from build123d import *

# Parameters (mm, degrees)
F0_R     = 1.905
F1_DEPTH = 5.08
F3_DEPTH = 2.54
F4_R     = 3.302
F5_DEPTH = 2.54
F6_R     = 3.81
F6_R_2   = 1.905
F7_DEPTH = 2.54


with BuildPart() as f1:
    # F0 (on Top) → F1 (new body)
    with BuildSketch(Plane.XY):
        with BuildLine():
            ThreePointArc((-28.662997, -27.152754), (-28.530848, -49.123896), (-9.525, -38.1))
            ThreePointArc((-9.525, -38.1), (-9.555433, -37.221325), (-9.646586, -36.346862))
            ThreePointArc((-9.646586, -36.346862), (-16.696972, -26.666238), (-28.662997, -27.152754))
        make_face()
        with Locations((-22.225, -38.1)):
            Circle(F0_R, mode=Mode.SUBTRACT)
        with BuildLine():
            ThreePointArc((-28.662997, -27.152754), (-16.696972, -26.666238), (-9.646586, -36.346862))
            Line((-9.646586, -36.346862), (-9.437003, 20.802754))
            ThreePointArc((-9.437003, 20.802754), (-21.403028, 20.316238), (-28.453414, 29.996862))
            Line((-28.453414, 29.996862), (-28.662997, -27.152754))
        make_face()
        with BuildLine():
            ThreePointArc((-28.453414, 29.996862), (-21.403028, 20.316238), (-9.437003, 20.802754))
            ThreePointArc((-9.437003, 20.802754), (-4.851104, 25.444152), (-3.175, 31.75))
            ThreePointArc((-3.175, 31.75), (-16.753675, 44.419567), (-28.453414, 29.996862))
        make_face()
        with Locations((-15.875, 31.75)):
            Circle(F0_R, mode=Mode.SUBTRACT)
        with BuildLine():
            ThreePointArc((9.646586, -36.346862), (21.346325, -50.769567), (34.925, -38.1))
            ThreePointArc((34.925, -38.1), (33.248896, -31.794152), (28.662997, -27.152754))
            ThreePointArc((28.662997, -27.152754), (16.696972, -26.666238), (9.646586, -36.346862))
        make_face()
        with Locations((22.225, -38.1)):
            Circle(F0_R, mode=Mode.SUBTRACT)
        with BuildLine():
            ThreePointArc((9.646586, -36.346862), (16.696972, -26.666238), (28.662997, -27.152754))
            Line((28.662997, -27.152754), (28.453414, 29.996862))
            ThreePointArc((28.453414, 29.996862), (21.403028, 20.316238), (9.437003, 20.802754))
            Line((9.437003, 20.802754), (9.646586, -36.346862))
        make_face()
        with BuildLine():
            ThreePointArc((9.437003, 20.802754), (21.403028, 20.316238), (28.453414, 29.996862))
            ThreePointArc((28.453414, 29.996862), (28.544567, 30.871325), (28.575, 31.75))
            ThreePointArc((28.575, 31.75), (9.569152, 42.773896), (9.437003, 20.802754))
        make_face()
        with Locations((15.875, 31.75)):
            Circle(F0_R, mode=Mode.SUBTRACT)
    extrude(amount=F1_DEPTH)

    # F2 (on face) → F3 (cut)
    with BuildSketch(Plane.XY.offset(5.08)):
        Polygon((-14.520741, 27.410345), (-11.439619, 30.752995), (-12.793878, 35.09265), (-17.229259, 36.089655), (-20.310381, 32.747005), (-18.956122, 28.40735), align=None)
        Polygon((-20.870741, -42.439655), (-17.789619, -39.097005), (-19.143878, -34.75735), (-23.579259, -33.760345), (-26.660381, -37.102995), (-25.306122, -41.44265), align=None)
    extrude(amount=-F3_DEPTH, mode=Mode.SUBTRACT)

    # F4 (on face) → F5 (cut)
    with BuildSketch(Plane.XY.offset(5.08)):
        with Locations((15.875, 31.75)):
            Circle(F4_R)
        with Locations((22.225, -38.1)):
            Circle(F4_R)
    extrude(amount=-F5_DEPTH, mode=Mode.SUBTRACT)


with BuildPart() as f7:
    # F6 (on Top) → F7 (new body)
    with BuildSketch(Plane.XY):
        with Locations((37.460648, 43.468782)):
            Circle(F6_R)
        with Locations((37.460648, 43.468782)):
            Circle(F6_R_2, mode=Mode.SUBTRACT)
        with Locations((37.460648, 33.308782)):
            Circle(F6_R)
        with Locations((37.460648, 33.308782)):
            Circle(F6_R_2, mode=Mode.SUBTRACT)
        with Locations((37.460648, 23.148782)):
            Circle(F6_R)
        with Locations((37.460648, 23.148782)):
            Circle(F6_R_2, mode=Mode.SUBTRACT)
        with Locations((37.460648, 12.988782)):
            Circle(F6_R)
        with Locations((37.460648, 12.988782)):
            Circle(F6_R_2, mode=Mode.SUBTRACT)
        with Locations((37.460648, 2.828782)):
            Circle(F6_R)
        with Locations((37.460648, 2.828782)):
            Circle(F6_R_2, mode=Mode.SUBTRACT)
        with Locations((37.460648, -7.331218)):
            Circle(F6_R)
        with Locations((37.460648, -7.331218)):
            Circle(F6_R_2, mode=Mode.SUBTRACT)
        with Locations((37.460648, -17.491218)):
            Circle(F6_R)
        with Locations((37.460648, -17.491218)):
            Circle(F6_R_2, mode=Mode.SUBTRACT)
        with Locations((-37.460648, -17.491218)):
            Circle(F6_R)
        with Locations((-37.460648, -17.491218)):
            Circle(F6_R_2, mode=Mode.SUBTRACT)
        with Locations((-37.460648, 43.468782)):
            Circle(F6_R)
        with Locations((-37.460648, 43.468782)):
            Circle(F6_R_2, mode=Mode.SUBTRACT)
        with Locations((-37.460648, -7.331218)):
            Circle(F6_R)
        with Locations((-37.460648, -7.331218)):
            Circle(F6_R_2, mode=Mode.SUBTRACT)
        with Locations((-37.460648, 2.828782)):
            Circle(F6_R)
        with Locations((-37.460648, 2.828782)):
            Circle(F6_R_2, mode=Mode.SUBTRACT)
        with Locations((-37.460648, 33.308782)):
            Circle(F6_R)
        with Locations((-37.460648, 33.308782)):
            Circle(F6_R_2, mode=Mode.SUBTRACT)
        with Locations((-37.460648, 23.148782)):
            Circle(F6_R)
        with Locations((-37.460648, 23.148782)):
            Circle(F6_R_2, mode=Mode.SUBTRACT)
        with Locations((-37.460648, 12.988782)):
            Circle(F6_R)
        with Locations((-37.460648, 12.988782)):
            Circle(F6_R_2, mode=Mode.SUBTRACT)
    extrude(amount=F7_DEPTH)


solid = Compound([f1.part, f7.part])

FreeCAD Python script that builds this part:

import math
import FreeCAD as App
import Part
import Sketcher
from FreeCAD import Vector
Q = App.Units.Quantity

doc = App.newDocument("Part")
params = doc.addObject("Spreadsheet::Sheet", "Params")
for row, (alias, value) in enumerate([
    ("sketch1_radius", "0.5 in"),
    ("sketch1_radius2", "0.5 in"),
    ("sketch1_radius3", "0.5 in"),
    ("sketch1_radius4", "0.5 in"),
    ("sketch1_diameter", "0.15 in"),
    ("pad1_length", "0.2 in"),
    ("pocket1_length", "0.1 in"),
    ("sketch3_diameter", "0.26 in"),
    ("pocket2_length", "0.1 in"),
    ("sketch4_diameter", "0.3 in"),
    ("sketch4_diameter2", "0.15 in"),
    ("pad2_length", "0.1 in"),
], start=1):
    params.set(f"A{row}", alias)
    params.set(f"B{row}", "=" + value)
    params.setAlias(f"B{row}", alias)

body = doc.addObject("PartDesign::Body", "Body")
body.AllowCompound = True

# Sketch on XY plane
sketch1 = body.newObject("Sketcher::SketchObject", "Sketch")
sketch1.AttachmentSupport = (doc.getObject("XY_Plane"), [""])
sketch1.MapMode = "FlatFace"
sketch1.addGeometry(Part.ArcOfCircle(Part.Circle(Vector(-22.225, -38.1, 0), Vector(0, 0, 1), 12.7), math.radians(120.459481), math.radians(360)), False)
sketch1.addGeometry(Part.ArcOfCircle(Part.Circle(Vector(-22.224968, -38.1, 0), Vector(0, 0, 1), 12.699968), math.radians(0.000001), math.radians(7.934603)), False)
sketch1.addGeometry(Part.LineSegment(Vector(-9.646586, -36.346862, 0), Vector(-9.437003, 20.802754, 0)), False)
sketch1.addGeometry(Part.ArcOfCircle(Part.Circle(Vector(-15.875, 31.75, 0), Vector(0, 0, 1), 12.7), math.radians(-59.54052), math.radians(0.000001)), False)
sketch1.addGeometry(Part.ArcOfCircle(Part.Circle(Vector(-15.875, 31.75, 0), Vector(0, 0, 1), 12.7), math.radians(0), math.radians(187.934582)), False)
sketch1.addGeometry(Part.LineSegment(Vector(-28.453414, 29.996862, 0), Vector(-28.662997, -27.152754, 0)), False)
sketch1.addGeometry(Part.Circle(Vector(-22.225, -38.1, 0), Vector(0, 0, 1), 1.905), False)
sketch1.addGeometry(Part.Circle(Vector(-15.875, 31.75, 0), Vector(0, 0, 1), 1.905), False)
sketch1.addGeometry(Part.ArcOfCircle(Part.Circle(Vector(22.225, -38.1, 0), Vector(0, 0, 1), 12.7), math.radians(172.065418), math.radians(360)), False)
sketch1.addGeometry(Part.ArcOfCircle(Part.Circle(Vector(22.225, -38.1, 0), Vector(0, 0, 1), 12.7), math.radians(-0.000001), math.radians(59.54052)), False)
sketch1.addGeometry(Part.LineSegment(Vector(28.662997, -27.152754, 0), Vector(28.453414, 29.996862, 0)), False)
sketch1.addGeometry(Part.ArcOfCircle(Part.Circle(Vector(15.875032, 31.75, 0), Vector(0, 0, 1), 12.699968), math.radians(-7.934603), math.radians(-0.000001)), False)
sketch1.addGeometry(Part.ArcOfCircle(Part.Circle(Vector(15.875, 31.75, 0), Vector(0, 0, 1), 12.7), math.radians(0), math.radians(239.540519)), False)
sketch1.addGeometry(Part.LineSegment(Vector(9.437003, 20.802754, 0), Vector(9.646586, -36.346862, 0)), False)
sketch1.addGeometry(Part.Circle(Vector(22.225, -38.1, 0), Vector(0, 0, 1), 1.905), False)
sketch1.addGeometry(Part.Circle(Vector(15.875, 31.75, 0), Vector(0, 0, 1), 1.905), False)
sketch1.addConstraint(Sketcher.Constraint("Coincident", 0, 2, 1, 1))
sketch1.addConstraint(Sketcher.Constraint("Coincident", 1, 2, 2, 1))
sketch1.addConstraint(Sketcher.Constraint("Coincident", 2, 2, 3, 1))
sketch1.addConstraint(Sketcher.Constraint("Coincident", 3, 2, 4, 1))
sketch1.addConstraint(Sketcher.Constraint("Coincident", 4, 2, 5, 1))
sketch1.addConstraint(Sketcher.Constraint("Coincident", 5, 2, 0, 1))
sketch1.addConstraint(Sketcher.Constraint("Coincident", 8, 2, 9, 1))
sketch1.addConstraint(Sketcher.Constraint("Coincident", 9, 2, 10, 1))
sketch1.addConstraint(Sketcher.Constraint("Coincident", 10, 2, 11, 1))
sketch1.addConstraint(Sketcher.Constraint("Coincident", 11, 2, 12, 1))
sketch1.addConstraint(Sketcher.Constraint("Coincident", 12, 2, 13, 1))
sketch1.addConstraint(Sketcher.Constraint("Coincident", 13, 2, 8, 1))
sketch1.addConstraint(Sketcher.Constraint("Coincident", 4, 3, 3, 3))
sketch1.addConstraint(Sketcher.Constraint("Coincident", 6, 3, 0, 3))
sketch1.addConstraint(Sketcher.Constraint("Coincident", 7, 3, 3, 3))
sketch1.addConstraint(Sketcher.Constraint("Coincident", 9, 3, 8, 3))
sketch1.addConstraint(Sketcher.Constraint("Coincident", 14, 3, 8, 3))
sketch1.addConstraint(Sketcher.Constraint("Coincident", 15, 3, 12, 3))
sketch1.addConstraint(Sketcher.Constraint("Radius", 0, Q("0.5 in")))
sketch1.addConstraint(Sketcher.Constraint("Radius", 3, Q("0.5 in")))
sketch1.addConstraint(Sketcher.Constraint("Radius", 8, Q("0.5 in")))
sketch1.addConstraint(Sketcher.Constraint("Radius", 12, Q("0.5 in")))
sketch1.addConstraint(Sketcher.Constraint("Diameter", 6, Q("0.15 in")))
sketch1.addConstraint(Sketcher.Constraint("Diameter", 7, Q("0.15 in")))
sketch1.addConstraint(Sketcher.Constraint("Diameter", 14, Q("0.15 in")))
sketch1.addConstraint(Sketcher.Constraint("Diameter", 15, Q("0.15 in")))
sketch1.addConstraint(Sketcher.Constraint("DistanceY", 0, 3, -1, 1, Q("1.5 in")))
sketch1.addConstraint(Sketcher.Constraint("DistanceY", 1, 3, -1, 1, Q("1.5 in")))
sketch1.addConstraint(Sketcher.Constraint("DistanceY", 8, 3, -1, 1, Q("1.5 in")))
sketch1.addConstraint(Sketcher.Constraint("DistanceY", 0, 2, -1, 1, Q("1.5 in")))
sketch1.addConstraint(Sketcher.Constraint("DistanceY", 8, 2, -1, 1, Q("1.5 in")))
sketch1.addConstraint(Sketcher.Constraint("DistanceX", 3, 3, 8, 3, Q("1.5 in")))
sketch1.addConstraint(Sketcher.Constraint("Distance", 2, Q("2.25 in")))
sketch1.addConstraint(Sketcher.Constraint("Distance", 5, Q("2.25 in")))
sketch1.addConstraint(Sketcher.Constraint("Distance", 10, Q("2.25 in")))
sketch1.addConstraint(Sketcher.Constraint("Distance", 13, Q("2.25 in")))
sketch1.addConstraint(Sketcher.Constraint("DistanceY", -1, 1, 3, 3, Q("1.25 in")))
sketch1.addConstraint(Sketcher.Constraint("DistanceY", -1, 1, 11, 3, Q("1.25 in")))
sketch1.addConstraint(Sketcher.Constraint("DistanceY", -1, 1, 12, 3, Q("1.25 in")))
sketch1.addConstraint(Sketcher.Constraint("DistanceY", -1, 1, 3, 2, Q("1.25 in")))
sketch1.addConstraint(Sketcher.Constraint("DistanceY", -1, 1, 11, 2, Q("1.25 in")))
sketch1.addConstraint(Sketcher.Constraint("DistanceX", 0, 3, 3, 3, Q("0.25 in")))
sketch1.addConstraint(Sketcher.Constraint("DistanceX", 3, 3, 12, 3, Q("1.25 in")))
sketch1.addConstraint(Sketcher.Constraint("DistanceX", 0, 3, -1, 1, Q("0.875 in")))
sketch1.addConstraint(Sketcher.Constraint("Radius", 1, Q("12.699968 mm")))
sketch1.addConstraint(Sketcher.Constraint("Radius", 11, Q("12.699968 mm")))
sketch1.addConstraint(Sketcher.Constraint("DistanceY", -1, 1, 4, 2, Q("29.996862 mm")))
sketch1.addConstraint(Sketcher.Constraint("DistanceY", -1, 1, 10, 2, Q("29.996862 mm")))
sketch1.addConstraint(Sketcher.Constraint("DistanceY", 1, 3, 1, 2, Q("1.753138 mm")))
sketch1.addConstraint(Sketcher.Constraint("DistanceX", 12, 2, 11, 3, Q("6.438029 mm")))
sketch1.setExpression("Constraints[18]", "Params.sketch1_radius")
sketch1.setExpression("Constraints[19]", "Params.sketch1_radius2")
sketch1.setExpression("Constraints[20]", "Params.sketch1_radius3")
sketch1.setExpression("Constraints[21]", "Params.sketch1_radius4")
sketch1.setExpression("Constraints[22]", "Params.sketch1_diameter")
pad1 = body.newObject("PartDesign::Pad", "Pad")
pad1.Profile = sketch1
pad1.setExpression("Length", "Params.pad1_length")

# Sketch on XY plane
sketch2 = body.newObject("Sketcher::SketchObject", "Sketch001")
sketch2.AttachmentSupport = (doc.getObject("XY_Plane"), [""])
sketch2.MapMode = "FlatFace"
sketch2.AttachmentOffset = App.Placement(Vector(0, 0, 0.2 * 25.4), App.Rotation())
sketch2.addGeometry(Part.LineSegment(Vector(-14.520741, 27.410345, 0), Vector(-11.439619, 30.752995, 0)), False)
sketch2.addGeometry(Part.LineSegment(Vector(-11.439619, 30.752995, 0), Vector(-12.793878, 35.09265, 0)), False)
sketch2.addGeometry(Part.LineSegment(Vector(-12.793878, 35.09265, 0), Vector(-17.229259, 36.089655, 0)), False)
sketch2.addGeometry(Part.LineSegment(Vector(-17.229259, 36.089655, 0), Vector(-20.310381, 32.747005, 0)), False)
sketch2.addGeometry(Part.LineSegment(Vector(-20.310381, 32.747005, 0), Vector(-18.956122, 28.40735, 0)), False)
sketch2.addGeometry(Part.LineSegment(Vector(-18.956122, 28.40735, 0), Vector(-14.520741, 27.410345, 0)), False)
sketch2.addGeometry(Part.LineSegment(Vector(-20.870741, -42.439655, 0), Vector(-17.789619, -39.097005, 0)), False)
sketch2.addGeometry(Part.LineSegment(Vector(-17.789619, -39.097005, 0), Vector(-19.143878, -34.75735, 0)), False)
sketch2.addGeometry(Part.LineSegment(Vector(-19.143878, -34.75735, 0), Vector(-23.579259, -33.760345, 0)), False)
sketch2.addGeometry(Part.LineSegment(Vector(-23.579259, -33.760345, 0), Vector(-26.660381, -37.102995, 0)), False)
sketch2.addGeometry(Part.LineSegment(Vector(-26.660381, -37.102995, 0), Vector(-25.306122, -41.44265, 0)), False)
sketch2.addGeometry(Part.LineSegment(Vector(-25.306122, -41.44265, 0), Vector(-20.870741, -42.439655, 0)), False)
sketch2.addConstraint(Sketcher.Constraint("Coincident", 0, 2, 1, 1))
sketch2.addConstraint(Sketcher.Constraint("Coincident", 1, 2, 2, 1))
sketch2.addConstraint(Sketcher.Constraint("Coincident", 2, 2, 3, 1))
sketch2.addConstraint(Sketcher.Constraint("Coincident", 3, 2, 4, 1))
sketch2.addConstraint(Sketcher.Constraint("Coincident", 4, 2, 5, 1))
sketch2.addConstraint(Sketcher.Constraint("Coincident", 5, 2, 0, 1))
sketch2.addConstraint(Sketcher.Constraint("Coincident", 6, 2, 7, 1))
sketch2.addConstraint(Sketcher.Constraint("Coincident", 7, 2, 8, 1))
sketch2.addConstraint(Sketcher.Constraint("Coincident", 8, 2, 9, 1))
sketch2.addConstraint(Sketcher.Constraint("Coincident", 9, 2, 10, 1))
sketch2.addConstraint(Sketcher.Constraint("Coincident", 10, 2, 11, 1))
sketch2.addConstraint(Sketcher.Constraint("Coincident", 11, 2, 6, 1))
sketch2.addConstraint(Sketcher.Constraint("Parallel", 0, 3))
sketch2.addConstraint(Sketcher.Constraint("Parallel", 1, 4))
sketch2.addConstraint(Sketcher.Constraint("Parallel", 2, 5))
sketch2.addConstraint(Sketcher.Constraint("Parallel", 3, 6))
sketch2.addConstraint(Sketcher.Constraint("Parallel", 4, 7))
sketch2.addConstraint(Sketcher.Constraint("Parallel", 5, 8))
sketch2.addConstraint(Sketcher.Constraint("Parallel", 6, 9))
sketch2.addConstraint(Sketcher.Constraint("Parallel", 7, 10))
sketch2.addConstraint(Sketcher.Constraint("Parallel", 8, 11))
sketch2.addConstraint(Sketcher.Constraint("Equal", 0, 1))
sketch2.addConstraint(Sketcher.Constraint("Equal", 1, 2))
sketch2.addConstraint(Sketcher.Constraint("Equal", 2, 3))
sketch2.addConstraint(Sketcher.Constraint("Equal", 5, 6))
sketch2.addConstraint(Sketcher.Constraint("Equal", 6, 7))
sketch2.addConstraint(Sketcher.Constraint("Equal", 7, 8))
sketch2.addConstraint(Sketcher.Constraint("Equal", 8, 9))
sketch2.addConstraint(Sketcher.Constraint("DistanceX", 6, 2, 0, 2, Q("0.25 in")))
sketch2.addConstraint(Sketcher.Constraint("DistanceY", 6, 2, 0, 2, Q("2.75 in")))
sketch2.addConstraint(Sketcher.Constraint("DistanceY", 4, 2, 1, 2, Q("6.6853 mm")))
sketch2.addConstraint(Sketcher.Constraint("DistanceX", 0, 2, -1, 1, Q("11.439619 mm")))
sketch2.addConstraint(Sketcher.Constraint("DistanceY", -1, 1, 1, 2, Q("35.09265 mm")))
sketch2.addConstraint(Sketcher.Constraint("DistanceX", 2, 2, -1, 1, Q("17.229259 mm")))
sketch2.addConstraint(Sketcher.Constraint("DistanceX", 3, 2, -1, 1, Q("20.310381 mm")))
sketch2.addConstraint(Sketcher.Constraint("DistanceX", 7, 2, -1, 1, Q("19.143878 mm")))
pocket1 = body.newObject("PartDesign::Pocket", "Pocket")
pocket1.Profile = sketch2
pocket1.setExpression("Length", "Params.pocket1_length")

# Sketch on XY plane
sketch3 = body.newObject("Sketcher::SketchObject", "Sketch002")
sketch3.AttachmentSupport = (doc.getObject("XY_Plane"), [""])
sketch3.MapMode = "FlatFace"
sketch3.AttachmentOffset = App.Placement(Vector(0, 0, 0.2 * 25.4), App.Rotation())
sketch3.addGeometry(Part.Circle(Vector(15.875, 31.75, 0), Vector(0, 0, 1), 3.302), False)
sketch3.addGeometry(Part.Circle(Vector(22.225, -38.1, 0), Vector(0, 0, 1), 3.302), False)
sketch3.addConstraint(Sketcher.Constraint("Equal", 0, 1))
sketch3.addConstraint(Sketcher.Constraint("Diameter", 0, Q("0.26 in")))
sketch3.addConstraint(Sketcher.Constraint("DistanceY", 1, 3, -1, 1, Q("1.5 in")))
sketch3.addConstraint(Sketcher.Constraint("DistanceY", -1, 1, 0, 3, Q("1.25 in")))
sketch3.addConstraint(Sketcher.Constraint("DistanceX", 0, 3, 1, 3, Q("0.25 in")))
sketch3.addConstraint(Sketcher.Constraint("DistanceX", -1, 1, 0, 3, Q("0.625 in")))
sketch3.setExpression("Constraints[1]", "Params.sketch3_diameter")
pocket2 = body.newObject("PartDesign::Pocket", "Pocket001")
pocket2.Profile = sketch3
pocket2.setExpression("Length", "Params.pocket2_length")
body2 = doc.addObject("PartDesign::Body", "Body001")
body2.AllowCompound = True

# Sketch on XY plane
sketch4 = body2.newObject("Sketcher::SketchObject", "Sketch003")
sketch4.AttachmentSupport = (doc.getObject("XY_Plane001"), [""])
sketch4.MapMode = "FlatFace"
sketch4.addGeometry(Part.Circle(Vector(37.460648, 43.468782, 0), Vector(0, 0, 1), 3.81), False)
sketch4.addGeometry(Part.Circle(Vector(37.460648, 43.468782, 0), Vector(0, 0, 1), 1.905), False)
sketch4.addGeometry(Part.Circle(Vector(37.460648, 33.308782, 0), Vector(0, 0, 1), 3.81), False)
sketch4.addGeometry(Part.Circle(Vector(37.460648, 33.308782, 0), Vector(0, 0, 1), 1.905), False)
sketch4.addGeometry(Part.Circle(Vector(37.460648, 23.148782, 0), Vector(0, 0, 1), 3.81), False)
sketch4.addGeometry(Part.Circle(Vector(37.460648, 23.148782, 0), Vector(0, 0, 1), 1.905), False)
sketch4.addGeometry(Part.Circle(Vector(37.460648, 12.988782, 0), Vector(0, 0, 1), 3.81), False)
sketch4.addGeometry(Part.Circle(Vector(37.460648, 12.988782, 0), Vector(0, 0, 1), 1.905), False)
sketch4.addGeometry(Part.Circle(Vector(37.460648, 2.828782, 0), Vector(0, 0, 1), 3.81), False)
sketch4.addGeometry(Part.Circle(Vector(37.460648, 2.828782, 0), Vector(0, 0, 1), 1.905), False)
sketch4.addGeometry(Part.Circle(Vector(37.460648, -7.331218, 0), Vector(0, 0, 1), 3.81), False)
sketch4.addGeometry(Part.Circle(Vector(37.460648, -7.331218, 0), Vector(0, 0, 1), 1.905), False)
sketch4.addGeometry(Part.Circle(Vector(37.460648, -17.491218, 0), Vector(0, 0, 1), 3.81), False)
sketch4.addGeometry(Part.Circle(Vector(37.460648, -17.491218, 0), Vector(0, 0, 1), 1.905), False)
sketch4.addGeometry(Part.Circle(Vector(-37.460648, -17.491218, 0), Vector(0, 0, 1), 3.81), False)
sketch4.addGeometry(Part.Circle(Vector(-37.460648, -17.491218, 0), Vector(0, 0, 1), 1.905), False)
sketch4.addGeometry(Part.Circle(Vector(-37.460648, 43.468782, 0), Vector(0, 0, 1), 3.81), False)
sketch4.addGeometry(Part.Circle(Vector(-37.460648, 43.468782, 0), Vector(0, 0, 1), 1.905), False)
sketch4.addGeometry(Part.Circle(Vector(-37.460648, -7.331218, 0), Vector(0, 0, 1), 3.81), False)
sketch4.addGeometry(Part.Circle(Vector(-37.460648, -7.331218, 0), Vector(0, 0, 1), 1.905), False)
sketch4.addGeometry(Part.Circle(Vector(-37.460648, 2.828782, 0), Vector(0, 0, 1), 3.81), False)
sketch4.addGeometry(Part.Circle(Vector(-37.460648, 2.828782, 0), Vector(0, 0, 1), 1.905), False)
sketch4.addGeometry(Part.Circle(Vector(-37.460648, 33.308782, 0), Vector(0, 0, 1), 3.81), False)
sketch4.addGeometry(Part.Circle(Vector(-37.460648, 33.308782, 0), Vector(0, 0, 1), 1.905), False)
sketch4.addGeometry(Part.Circle(Vector(-37.460648, 23.148782, 0), Vector(0, 0, 1), 3.81), False)
sketch4.addGeometry(Part.Circle(Vector(-37.460648, 23.148782, 0), Vector(0, 0, 1), 1.905), False)
sketch4.addGeometry(Part.Circle(Vector(-37.460648, 12.988782, 0), Vector(0, 0, 1), 3.81), False)
sketch4.addGeometry(Part.Circle(Vector(-37.460648, 12.988782, 0), Vector(0, 0, 1), 1.905), False)
sketch4.addConstraint(Sketcher.Constraint("Coincident", 1, 3, 0, 3))
sketch4.addConstraint(Sketcher.Constraint("Coincident", 3, 3, 2, 3))
sketch4.addConstraint(Sketcher.Constraint("Coincident", 5, 3, 4, 3))
sketch4.addConstraint(Sketcher.Constraint("Coincident", 7, 3, 6, 3))
sketch4.addConstraint(Sketcher.Constraint("Coincident", 9, 3, 8, 3))
sketch4.addConstraint(Sketcher.Constraint("Coincident", 11, 3, 10, 3))
sketch4.addConstraint(Sketcher.Constraint("Coincident", 13, 3, 12, 3))
sketch4.addConstraint(Sketcher.Constraint("Coincident", 15, 3, 14, 3))
sketch4.addConstraint(Sketcher.Constraint("Coincident", 17, 3, 16, 3))
sketch4.addConstraint(Sketcher.Constraint("Coincident", 19, 3, 18, 3))
sketch4.addConstraint(Sketcher.Constraint("Coincident", 21, 3, 20, 3))
sketch4.addConstraint(Sketcher.Constraint("Coincident", 23, 3, 22, 3))
sketch4.addConstraint(Sketcher.Constraint("Coincident", 25, 3, 24, 3))
sketch4.addConstraint(Sketcher.Constraint("Coincident", 27, 3, 26, 3))
sketch4.addConstraint(Sketcher.Constraint("Equal", 0, 2))
sketch4.addConstraint(Sketcher.Constraint("Equal", 1, 3))
sketch4.addConstraint(Sketcher.Constraint("Equal", 2, 4))
sketch4.addConstraint(Sketcher.Constraint("Equal", 3, 5))
sketch4.addConstraint(Sketcher.Constraint("Equal", 4, 6))
sketch4.addConstraint(Sketcher.Constraint("Equal", 5, 7))
sketch4.addConstraint(Sketcher.Constraint("Equal", 6, 8))
sketch4.addConstraint(Sketcher.Constraint("Equal", 7, 9))
sketch4.addConstraint(Sketcher.Constraint("Equal", 8, 10))
sketch4.addConstraint(Sketcher.Constraint("Equal", 9, 11))
sketch4.addConstraint(Sketcher.Constraint("Equal", 10, 12))
sketch4.addConstraint(Sketcher.Constraint("Equal", 11, 13))
sketch4.addConstraint(Sketcher.Constraint("Equal", 12, 14))
sketch4.addConstraint(Sketcher.Constraint("Equal", 13, 15))
sketch4.addConstraint(Sketcher.Constraint("Equal", 14, 16))
sketch4.addConstraint(Sketcher.Constraint("Equal", 15, 17))
sketch4.addConstraint(Sketcher.Constraint("Equal", 16, 18))
sketch4.addConstraint(Sketcher.Constraint("Equal", 17, 19))
sketch4.addConstraint(Sketcher.Constraint("Equal", 18, 20))
sketch4.addConstraint(Sketcher.Constraint("Equal", 19, 21))
sketch4.addConstraint(Sketcher.Constraint("Equal", 20, 22))
sketch4.addConstraint(Sketcher.Constraint("Equal", 21, 23))
sketch4.addConstraint(Sketcher.Constraint("Equal", 22, 24))
sketch4.addConstraint(Sketcher.Constraint("Equal", 23, 25))
sketch4.addConstraint(Sketcher.Constraint("Equal", 24, 26))
sketch4.addConstraint(Sketcher.Constraint("Equal", 25, 27))
sketch4.addConstraint(Sketcher.Constraint("Symmetric", 12, 3, 14, 3, -2))
sketch4.addConstraint(Sketcher.Constraint("Symmetric", 0, 3, 16, 3, -2))
sketch4.addConstraint(Sketcher.Constraint("Symmetric", 10, 3, 18, 3, -2))
sketch4.addConstraint(Sketcher.Constraint("Symmetric", 8, 3, 20, 3, -2))
sketch4.addConstraint(Sketcher.Constraint("Symmetric", 2, 3, 22, 3, -2))
sketch4.addConstraint(Sketcher.Constraint("Symmetric", 4, 3, 24, 3, -2))
sketch4.addConstraint(Sketcher.Constraint("Symmetric", 6, 3, 26, 3, -2))
sketch4.addConstraint(Sketcher.Constraint("Vertical", 1, 3, 2, 3))
sketch4.addConstraint(Sketcher.Constraint("Vertical", 3, 3, 4, 3))
sketch4.addConstraint(Sketcher.Constraint("Vertical", 5, 3, 6, 3))
sketch4.addConstraint(Sketcher.Constraint("Vertical", 7, 3, 8, 3))
sketch4.addConstraint(Sketcher.Constraint("Vertical", 9, 3, 10, 3))
sketch4.addConstraint(Sketcher.Constraint("Vertical", 11, 3, 12, 3))
sketch4.addConstraint(Sketcher.Constraint("Diameter", 0, Q("0.3 in")))
sketch4.addConstraint(Sketcher.Constraint("Diameter", 1, Q("0.15 in")))
sketch4.addConstraint(Sketcher.Constraint("DistanceY", 18, 3, 16, 3, Q("2 in")))
sketch4.addConstraint(Sketcher.Constraint("DistanceY", 2, 3, 0, 3, Q("0.4 in")))
sketch4.addConstraint(Sketcher.Constraint("DistanceY", 4, 3, 2, 3, Q("0.4 in")))
sketch4.addConstraint(Sketcher.Constraint("DistanceY", 6, 3, 4, 3, Q("0.4 in")))
sketch4.addConstraint(Sketcher.Constraint("DistanceY", 8, 3, 6, 3, Q("0.4 in")))
sketch4.addConstraint(Sketcher.Constraint("DistanceY", 12, 3, 10, 3, Q("0.4 in")))
sketch4.addConstraint(Sketcher.Constraint("DistanceY", -1, 1, 0, 3, Q("43.468782 mm")))
sketch4.addConstraint(Sketcher.Constraint("DistanceX", -1, 1, 0, 3, Q("37.460648 mm")))
sketch4.setExpression("Constraints[53]", "Params.sketch4_diameter")
sketch4.setExpression("Constraints[54]", "Params.sketch4_diameter2")
pad2 = body2.newObject("PartDesign::Pad", "Pad001")
pad2.Profile = sketch4
pad2.setExpression("Length", "Params.pad2_length")

doc.recompute()
